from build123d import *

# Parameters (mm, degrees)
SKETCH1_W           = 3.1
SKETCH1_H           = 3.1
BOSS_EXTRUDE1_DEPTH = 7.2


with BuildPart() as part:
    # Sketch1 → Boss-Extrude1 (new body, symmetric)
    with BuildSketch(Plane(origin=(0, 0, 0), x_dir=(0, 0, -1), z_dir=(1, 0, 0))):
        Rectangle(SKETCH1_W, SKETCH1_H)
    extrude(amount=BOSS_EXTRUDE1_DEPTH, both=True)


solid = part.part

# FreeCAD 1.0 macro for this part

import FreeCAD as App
import Part
import Sketcher

doc = App.newDocument("Part")
body = doc.addObject("PartDesign::Body", "Body")

sketch1 = body.newObject("Sketcher::SketchObject", "Sketch")
sketch1.AttachmentSupport = (doc.getObject("YZ_Plane"), [""])
sketch1.MapMode = "FlatFace"
sketch1.addGeometry([
    Part.LineSegment(App.Vector(1.6, 1.6, 0), App.Vector(-1.6, 1.6, 0)),
    Part.LineSegment(App.Vector(-1.6, 1.6, 0), App.Vector(-1.6, -1.6, 0)),
    Part.LineSegment(App.Vector(-1.6, -1.6, 0), App.Vector(1.6, -1.6, 0)),
    Part.LineSegment(App.Vector(1.6, -1.6, 0), App.Vector(1.6, 1.6, 0)),
], False)
sketch1.addConstraint([
    Sketcher.Constraint("Coincident", 0, 2, 1, 1),
    Sketcher.Constraint("Coincident", 1, 2, 2, 1),
    Sketcher.Constraint("Coincident", 2, 2, 3, 1),
    Sketcher.Constraint("Coincident", 3, 2, 0, 1),
    Sketcher.Constraint("Horizontal", 0),
    Sketcher.Constraint("Vertical", 1),
    Sketcher.Constraint("Horizontal", 2),
    Sketcher.Constraint("Vertical", 3),
    Sketcher.Constraint("Symmetric", 0, 2, 2, 2, -1, 1),
    Sketcher.Constraint("Equal", 2, 1),
    Sketcher.Constraint("DistanceX", 0, 2, 0, 1, 3.1),
])
pad1 = body.newObject("PartDesign::Pad", "Pad")
pad1.Profile = sketch1
pad1.Length = 14.4
pad1.Midplane = True

doc.recompute()
